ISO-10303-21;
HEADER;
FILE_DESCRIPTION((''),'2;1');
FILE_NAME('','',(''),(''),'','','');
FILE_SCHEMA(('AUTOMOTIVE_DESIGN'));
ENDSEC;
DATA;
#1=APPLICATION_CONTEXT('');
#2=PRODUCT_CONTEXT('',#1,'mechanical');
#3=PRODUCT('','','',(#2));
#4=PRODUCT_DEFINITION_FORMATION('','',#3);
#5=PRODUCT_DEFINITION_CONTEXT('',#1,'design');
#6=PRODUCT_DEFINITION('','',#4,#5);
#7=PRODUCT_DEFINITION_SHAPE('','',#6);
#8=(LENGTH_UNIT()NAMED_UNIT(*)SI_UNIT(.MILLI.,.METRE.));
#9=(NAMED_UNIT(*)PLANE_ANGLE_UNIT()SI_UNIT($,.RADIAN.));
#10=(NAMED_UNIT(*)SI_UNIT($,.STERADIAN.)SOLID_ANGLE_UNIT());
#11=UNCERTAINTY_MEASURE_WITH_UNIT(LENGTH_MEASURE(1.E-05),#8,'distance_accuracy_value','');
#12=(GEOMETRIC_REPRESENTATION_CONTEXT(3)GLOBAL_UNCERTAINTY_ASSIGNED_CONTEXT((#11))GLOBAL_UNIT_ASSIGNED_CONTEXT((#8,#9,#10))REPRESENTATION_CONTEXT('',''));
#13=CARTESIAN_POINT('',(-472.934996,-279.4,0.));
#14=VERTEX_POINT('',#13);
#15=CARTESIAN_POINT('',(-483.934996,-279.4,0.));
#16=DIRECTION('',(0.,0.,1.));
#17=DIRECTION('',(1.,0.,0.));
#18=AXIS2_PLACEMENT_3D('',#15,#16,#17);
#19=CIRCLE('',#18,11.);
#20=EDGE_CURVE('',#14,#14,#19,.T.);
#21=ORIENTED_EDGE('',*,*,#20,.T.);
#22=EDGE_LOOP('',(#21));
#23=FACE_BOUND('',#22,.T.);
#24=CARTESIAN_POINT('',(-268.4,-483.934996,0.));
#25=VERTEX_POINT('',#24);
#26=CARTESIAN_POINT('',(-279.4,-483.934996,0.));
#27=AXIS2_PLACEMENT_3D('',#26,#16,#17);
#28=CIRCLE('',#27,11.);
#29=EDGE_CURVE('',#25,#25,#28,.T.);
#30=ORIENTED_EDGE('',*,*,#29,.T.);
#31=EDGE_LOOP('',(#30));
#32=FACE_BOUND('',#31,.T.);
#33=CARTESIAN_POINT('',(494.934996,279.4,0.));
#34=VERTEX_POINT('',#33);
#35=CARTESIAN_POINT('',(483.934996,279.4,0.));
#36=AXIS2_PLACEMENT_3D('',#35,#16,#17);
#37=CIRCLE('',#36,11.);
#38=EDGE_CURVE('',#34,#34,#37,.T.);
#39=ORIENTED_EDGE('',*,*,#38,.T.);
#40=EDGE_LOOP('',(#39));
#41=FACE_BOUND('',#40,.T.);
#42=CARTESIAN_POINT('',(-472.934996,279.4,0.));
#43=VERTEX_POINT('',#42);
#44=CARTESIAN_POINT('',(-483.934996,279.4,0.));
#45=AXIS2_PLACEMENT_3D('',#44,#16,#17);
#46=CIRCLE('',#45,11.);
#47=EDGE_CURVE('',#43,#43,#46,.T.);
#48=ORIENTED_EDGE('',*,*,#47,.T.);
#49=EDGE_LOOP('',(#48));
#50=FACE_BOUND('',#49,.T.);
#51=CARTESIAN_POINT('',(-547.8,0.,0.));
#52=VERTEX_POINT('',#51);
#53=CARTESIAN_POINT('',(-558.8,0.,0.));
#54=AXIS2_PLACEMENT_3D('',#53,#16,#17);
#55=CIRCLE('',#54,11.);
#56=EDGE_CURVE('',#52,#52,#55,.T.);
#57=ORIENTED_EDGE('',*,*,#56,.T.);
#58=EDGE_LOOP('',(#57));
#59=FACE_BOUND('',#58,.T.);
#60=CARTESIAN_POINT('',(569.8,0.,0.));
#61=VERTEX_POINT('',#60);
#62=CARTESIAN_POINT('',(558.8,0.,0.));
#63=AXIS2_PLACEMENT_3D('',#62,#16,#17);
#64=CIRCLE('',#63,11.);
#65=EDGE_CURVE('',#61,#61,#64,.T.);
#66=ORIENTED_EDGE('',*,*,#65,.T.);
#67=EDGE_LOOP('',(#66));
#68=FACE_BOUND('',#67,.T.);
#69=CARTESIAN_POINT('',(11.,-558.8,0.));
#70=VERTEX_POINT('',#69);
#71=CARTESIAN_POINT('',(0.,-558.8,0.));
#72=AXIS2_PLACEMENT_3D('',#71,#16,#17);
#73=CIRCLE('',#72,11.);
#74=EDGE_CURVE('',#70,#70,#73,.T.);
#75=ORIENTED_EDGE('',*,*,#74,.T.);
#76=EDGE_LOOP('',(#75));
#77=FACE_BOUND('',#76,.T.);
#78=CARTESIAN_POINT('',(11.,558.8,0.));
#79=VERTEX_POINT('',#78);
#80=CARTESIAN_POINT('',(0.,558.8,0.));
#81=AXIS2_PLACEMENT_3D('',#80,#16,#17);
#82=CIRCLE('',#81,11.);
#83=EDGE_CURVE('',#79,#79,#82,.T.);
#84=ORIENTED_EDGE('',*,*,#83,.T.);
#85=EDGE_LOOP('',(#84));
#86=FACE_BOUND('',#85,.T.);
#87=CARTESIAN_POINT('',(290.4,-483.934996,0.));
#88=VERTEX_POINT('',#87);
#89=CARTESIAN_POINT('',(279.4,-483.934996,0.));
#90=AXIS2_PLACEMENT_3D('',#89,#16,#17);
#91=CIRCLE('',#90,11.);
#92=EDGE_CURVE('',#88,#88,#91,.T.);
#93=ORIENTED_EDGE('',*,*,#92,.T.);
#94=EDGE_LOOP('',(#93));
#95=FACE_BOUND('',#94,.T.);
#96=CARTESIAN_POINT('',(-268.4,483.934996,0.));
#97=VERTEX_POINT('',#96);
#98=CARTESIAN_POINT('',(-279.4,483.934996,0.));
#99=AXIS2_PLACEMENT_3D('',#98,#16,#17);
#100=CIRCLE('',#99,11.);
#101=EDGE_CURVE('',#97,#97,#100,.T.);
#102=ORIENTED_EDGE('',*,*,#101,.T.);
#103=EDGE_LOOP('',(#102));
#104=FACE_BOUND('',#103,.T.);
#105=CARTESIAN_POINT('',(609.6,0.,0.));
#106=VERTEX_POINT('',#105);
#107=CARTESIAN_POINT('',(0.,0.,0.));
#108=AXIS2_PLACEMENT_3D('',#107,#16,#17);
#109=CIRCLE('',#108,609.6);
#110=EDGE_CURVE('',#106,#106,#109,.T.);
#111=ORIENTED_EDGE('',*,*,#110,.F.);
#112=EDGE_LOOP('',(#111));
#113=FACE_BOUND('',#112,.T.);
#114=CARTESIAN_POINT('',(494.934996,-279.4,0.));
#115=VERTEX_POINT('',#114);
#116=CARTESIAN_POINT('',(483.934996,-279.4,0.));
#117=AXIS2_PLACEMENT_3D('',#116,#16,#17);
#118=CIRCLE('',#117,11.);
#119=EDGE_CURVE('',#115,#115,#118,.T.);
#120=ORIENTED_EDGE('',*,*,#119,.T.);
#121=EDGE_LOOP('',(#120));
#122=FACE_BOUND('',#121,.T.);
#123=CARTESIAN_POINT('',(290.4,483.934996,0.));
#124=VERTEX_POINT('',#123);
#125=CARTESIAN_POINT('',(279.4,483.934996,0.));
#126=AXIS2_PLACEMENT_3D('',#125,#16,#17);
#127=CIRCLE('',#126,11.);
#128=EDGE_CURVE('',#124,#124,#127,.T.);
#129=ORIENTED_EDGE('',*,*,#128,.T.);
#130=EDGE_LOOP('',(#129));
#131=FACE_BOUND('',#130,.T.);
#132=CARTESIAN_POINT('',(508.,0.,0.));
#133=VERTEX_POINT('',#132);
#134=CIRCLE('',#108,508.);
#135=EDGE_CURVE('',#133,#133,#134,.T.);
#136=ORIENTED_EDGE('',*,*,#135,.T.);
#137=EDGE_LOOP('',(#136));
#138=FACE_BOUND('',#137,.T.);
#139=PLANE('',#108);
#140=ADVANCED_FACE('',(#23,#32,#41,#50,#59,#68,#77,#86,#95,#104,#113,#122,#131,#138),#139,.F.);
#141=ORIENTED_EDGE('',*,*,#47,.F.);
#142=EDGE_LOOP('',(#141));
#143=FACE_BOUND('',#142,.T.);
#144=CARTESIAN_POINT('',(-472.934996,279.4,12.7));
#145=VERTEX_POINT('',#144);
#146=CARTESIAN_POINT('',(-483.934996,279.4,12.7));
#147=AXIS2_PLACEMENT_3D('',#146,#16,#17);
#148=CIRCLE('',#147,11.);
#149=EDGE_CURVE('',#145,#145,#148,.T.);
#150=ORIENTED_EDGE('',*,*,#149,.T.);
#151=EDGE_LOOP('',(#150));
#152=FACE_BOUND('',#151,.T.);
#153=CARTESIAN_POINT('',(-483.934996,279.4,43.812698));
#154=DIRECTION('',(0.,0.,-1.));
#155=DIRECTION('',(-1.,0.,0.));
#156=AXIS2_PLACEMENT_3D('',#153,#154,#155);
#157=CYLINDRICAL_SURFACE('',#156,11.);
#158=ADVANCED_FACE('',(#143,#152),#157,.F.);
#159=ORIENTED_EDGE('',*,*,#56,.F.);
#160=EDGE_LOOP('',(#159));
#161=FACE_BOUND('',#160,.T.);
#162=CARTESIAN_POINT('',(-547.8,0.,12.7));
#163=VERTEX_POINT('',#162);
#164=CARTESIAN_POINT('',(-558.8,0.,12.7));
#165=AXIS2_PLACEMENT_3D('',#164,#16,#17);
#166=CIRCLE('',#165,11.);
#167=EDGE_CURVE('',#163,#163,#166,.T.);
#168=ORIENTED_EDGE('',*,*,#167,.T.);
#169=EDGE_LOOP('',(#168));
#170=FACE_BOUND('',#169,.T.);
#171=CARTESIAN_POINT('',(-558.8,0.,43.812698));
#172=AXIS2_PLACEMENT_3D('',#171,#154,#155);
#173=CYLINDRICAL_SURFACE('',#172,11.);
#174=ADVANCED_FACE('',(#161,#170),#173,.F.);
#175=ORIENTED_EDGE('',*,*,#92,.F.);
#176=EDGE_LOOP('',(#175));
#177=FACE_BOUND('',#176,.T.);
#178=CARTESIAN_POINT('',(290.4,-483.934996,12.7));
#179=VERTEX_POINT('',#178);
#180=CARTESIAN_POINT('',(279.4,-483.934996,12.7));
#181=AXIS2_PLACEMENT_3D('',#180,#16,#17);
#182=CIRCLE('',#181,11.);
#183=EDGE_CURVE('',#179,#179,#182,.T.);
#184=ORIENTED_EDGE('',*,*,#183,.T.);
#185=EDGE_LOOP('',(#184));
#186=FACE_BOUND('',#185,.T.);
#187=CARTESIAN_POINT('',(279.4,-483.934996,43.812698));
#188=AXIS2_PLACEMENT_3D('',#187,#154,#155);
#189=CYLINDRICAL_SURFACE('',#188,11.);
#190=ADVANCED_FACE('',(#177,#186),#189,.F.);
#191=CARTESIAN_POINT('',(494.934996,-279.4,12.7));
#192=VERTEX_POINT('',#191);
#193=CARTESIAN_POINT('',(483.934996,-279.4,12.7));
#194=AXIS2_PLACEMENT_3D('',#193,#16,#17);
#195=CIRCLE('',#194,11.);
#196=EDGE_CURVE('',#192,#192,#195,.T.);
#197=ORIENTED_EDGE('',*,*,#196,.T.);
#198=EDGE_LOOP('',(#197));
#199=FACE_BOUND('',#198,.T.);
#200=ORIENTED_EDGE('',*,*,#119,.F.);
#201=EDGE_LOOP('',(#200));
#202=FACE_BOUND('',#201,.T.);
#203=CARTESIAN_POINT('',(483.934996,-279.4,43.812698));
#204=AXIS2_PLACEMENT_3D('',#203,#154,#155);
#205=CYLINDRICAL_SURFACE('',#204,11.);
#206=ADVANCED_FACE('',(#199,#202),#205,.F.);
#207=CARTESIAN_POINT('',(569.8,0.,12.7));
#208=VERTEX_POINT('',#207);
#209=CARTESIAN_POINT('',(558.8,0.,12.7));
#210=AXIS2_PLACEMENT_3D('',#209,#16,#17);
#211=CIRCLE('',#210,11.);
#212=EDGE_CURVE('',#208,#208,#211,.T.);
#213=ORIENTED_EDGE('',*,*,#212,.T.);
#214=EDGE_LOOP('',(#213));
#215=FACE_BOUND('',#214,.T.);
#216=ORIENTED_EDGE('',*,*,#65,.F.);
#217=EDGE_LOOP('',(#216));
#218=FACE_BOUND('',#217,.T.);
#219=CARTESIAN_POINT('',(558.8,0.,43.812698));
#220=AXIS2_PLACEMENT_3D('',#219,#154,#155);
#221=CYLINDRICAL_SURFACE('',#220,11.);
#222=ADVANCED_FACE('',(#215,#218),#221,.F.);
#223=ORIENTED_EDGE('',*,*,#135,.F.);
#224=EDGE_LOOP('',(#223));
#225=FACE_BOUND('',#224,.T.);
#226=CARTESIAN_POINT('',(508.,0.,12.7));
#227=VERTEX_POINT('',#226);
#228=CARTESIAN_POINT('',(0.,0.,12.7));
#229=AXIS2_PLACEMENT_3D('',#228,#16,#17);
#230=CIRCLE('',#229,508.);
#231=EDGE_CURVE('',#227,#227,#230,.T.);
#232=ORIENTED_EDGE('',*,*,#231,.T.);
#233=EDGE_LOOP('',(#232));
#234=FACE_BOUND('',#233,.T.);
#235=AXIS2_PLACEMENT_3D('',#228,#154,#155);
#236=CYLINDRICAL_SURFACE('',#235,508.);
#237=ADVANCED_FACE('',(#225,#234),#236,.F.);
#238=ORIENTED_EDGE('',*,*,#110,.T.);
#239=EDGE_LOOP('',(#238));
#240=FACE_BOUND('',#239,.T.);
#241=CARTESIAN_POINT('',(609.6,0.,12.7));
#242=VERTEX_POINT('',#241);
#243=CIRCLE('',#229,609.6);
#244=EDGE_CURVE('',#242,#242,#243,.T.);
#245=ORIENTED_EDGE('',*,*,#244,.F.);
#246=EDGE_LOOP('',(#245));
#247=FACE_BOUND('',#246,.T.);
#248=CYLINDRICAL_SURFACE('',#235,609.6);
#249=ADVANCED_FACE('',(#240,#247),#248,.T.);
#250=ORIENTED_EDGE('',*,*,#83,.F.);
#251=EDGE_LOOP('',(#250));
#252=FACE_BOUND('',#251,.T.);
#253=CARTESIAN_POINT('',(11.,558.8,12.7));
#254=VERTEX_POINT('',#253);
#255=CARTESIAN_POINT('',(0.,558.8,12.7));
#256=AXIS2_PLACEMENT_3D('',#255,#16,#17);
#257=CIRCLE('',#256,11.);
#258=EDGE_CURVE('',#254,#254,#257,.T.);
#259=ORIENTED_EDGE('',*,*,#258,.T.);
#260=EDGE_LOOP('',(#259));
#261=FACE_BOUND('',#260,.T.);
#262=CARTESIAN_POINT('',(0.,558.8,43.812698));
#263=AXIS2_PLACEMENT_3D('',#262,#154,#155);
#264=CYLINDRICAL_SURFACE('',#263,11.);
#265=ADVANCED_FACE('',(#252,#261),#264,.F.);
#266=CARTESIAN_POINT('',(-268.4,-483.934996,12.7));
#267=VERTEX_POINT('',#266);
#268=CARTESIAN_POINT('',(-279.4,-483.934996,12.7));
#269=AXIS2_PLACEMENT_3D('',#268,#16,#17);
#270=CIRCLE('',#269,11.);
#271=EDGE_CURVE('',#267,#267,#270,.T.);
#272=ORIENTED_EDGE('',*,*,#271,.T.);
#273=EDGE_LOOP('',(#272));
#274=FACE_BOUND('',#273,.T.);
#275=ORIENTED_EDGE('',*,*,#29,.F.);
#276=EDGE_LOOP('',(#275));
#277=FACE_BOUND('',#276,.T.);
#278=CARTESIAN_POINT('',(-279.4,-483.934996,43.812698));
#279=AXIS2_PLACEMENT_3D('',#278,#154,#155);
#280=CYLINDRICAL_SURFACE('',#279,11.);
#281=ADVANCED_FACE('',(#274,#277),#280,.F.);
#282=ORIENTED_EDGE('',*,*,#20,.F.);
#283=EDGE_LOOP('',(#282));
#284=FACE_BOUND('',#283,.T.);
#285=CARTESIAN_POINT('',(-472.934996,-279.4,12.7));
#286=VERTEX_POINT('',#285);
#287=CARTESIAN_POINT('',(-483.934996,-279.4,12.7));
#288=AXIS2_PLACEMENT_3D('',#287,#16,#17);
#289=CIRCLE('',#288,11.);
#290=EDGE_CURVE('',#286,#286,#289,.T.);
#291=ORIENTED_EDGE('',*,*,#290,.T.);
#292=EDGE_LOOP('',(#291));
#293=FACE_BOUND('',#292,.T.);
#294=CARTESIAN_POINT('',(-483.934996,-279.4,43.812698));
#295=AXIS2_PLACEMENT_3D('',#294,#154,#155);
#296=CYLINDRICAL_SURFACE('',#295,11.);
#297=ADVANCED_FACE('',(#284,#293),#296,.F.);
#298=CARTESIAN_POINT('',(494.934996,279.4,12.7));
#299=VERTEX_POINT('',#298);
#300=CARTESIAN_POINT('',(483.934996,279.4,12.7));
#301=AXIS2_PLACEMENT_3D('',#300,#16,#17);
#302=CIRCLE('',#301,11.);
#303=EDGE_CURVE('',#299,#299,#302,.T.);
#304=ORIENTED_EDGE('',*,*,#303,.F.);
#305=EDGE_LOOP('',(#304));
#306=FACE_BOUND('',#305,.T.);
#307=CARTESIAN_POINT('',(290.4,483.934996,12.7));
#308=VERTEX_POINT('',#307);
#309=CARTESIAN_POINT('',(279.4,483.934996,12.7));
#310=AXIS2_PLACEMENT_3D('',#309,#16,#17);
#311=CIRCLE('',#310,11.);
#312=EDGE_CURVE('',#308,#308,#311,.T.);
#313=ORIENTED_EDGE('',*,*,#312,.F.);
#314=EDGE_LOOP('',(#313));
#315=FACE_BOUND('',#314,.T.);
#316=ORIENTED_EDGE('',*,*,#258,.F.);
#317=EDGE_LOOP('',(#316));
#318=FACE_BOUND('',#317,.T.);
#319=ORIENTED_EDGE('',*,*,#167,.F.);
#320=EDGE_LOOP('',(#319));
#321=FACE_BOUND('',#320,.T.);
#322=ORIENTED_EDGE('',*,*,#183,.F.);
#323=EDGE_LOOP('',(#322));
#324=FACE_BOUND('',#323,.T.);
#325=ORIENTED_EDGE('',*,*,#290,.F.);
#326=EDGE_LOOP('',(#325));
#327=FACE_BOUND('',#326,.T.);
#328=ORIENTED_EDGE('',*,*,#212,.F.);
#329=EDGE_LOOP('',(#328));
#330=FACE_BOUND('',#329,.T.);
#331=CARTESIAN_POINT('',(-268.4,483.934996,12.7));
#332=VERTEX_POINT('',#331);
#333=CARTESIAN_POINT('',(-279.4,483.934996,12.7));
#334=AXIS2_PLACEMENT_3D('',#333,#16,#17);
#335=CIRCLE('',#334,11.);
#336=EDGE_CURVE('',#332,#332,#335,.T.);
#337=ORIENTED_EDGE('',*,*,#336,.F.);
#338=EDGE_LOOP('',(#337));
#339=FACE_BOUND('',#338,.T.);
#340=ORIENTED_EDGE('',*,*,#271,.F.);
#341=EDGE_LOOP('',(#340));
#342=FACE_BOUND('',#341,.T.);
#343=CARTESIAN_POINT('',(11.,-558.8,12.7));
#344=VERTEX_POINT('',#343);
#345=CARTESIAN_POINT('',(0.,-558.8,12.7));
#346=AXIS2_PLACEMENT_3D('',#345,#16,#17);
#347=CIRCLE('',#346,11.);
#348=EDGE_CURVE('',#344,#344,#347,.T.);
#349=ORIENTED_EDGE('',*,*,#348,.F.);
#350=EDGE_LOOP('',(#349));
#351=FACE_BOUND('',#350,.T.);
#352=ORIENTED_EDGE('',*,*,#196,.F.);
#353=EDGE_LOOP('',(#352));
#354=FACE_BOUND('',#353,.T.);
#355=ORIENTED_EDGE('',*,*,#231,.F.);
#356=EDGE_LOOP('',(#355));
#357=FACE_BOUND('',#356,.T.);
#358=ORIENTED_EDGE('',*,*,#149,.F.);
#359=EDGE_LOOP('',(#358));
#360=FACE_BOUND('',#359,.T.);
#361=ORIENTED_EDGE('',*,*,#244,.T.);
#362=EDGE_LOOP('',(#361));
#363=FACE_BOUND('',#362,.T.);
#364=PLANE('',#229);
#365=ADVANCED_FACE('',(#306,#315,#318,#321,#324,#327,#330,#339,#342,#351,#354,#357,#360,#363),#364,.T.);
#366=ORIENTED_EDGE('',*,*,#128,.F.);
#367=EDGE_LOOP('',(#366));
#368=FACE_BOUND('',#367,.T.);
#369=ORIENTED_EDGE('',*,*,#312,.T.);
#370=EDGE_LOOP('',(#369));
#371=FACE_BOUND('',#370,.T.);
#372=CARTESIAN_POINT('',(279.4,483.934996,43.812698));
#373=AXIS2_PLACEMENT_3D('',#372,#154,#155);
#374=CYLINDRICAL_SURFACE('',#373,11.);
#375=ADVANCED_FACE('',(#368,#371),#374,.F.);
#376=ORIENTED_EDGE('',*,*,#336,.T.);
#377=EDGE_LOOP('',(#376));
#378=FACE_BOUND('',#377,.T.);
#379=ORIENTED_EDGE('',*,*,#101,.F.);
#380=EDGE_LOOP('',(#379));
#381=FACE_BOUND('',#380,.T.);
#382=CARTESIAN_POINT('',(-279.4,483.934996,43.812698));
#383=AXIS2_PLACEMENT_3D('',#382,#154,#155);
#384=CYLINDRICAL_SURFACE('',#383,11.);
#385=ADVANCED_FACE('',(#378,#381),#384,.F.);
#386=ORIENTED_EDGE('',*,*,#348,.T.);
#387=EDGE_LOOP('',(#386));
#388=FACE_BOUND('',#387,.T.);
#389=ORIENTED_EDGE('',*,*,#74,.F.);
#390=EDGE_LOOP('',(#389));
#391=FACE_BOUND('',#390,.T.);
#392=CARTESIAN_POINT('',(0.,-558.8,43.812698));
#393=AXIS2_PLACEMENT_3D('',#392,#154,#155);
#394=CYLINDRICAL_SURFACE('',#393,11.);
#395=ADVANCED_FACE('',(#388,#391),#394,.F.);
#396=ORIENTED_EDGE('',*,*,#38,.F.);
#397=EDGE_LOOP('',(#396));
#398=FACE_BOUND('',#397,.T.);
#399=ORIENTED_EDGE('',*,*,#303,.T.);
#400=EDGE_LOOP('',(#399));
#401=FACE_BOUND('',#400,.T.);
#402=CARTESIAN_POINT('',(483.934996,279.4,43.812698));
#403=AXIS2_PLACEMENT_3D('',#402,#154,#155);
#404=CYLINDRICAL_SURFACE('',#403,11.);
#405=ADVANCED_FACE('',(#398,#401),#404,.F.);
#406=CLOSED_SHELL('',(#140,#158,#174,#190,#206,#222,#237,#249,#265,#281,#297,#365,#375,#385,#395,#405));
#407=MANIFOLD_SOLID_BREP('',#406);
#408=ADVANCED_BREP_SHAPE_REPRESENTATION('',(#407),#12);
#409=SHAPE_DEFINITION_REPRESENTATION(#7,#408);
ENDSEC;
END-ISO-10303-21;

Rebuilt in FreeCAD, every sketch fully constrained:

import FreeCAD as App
import Part
import Sketcher
from FreeCAD import Vector
Q = App.Units.Quantity

doc = App.newDocument("Part")
body = doc.addObject("PartDesign::Body", "Body")

sketch1 = body.newObject("Sketcher::SketchObject", "Sketch")
sketch1.AttachmentSupport = (doc.getObject("XY_Plane"), [""])
sketch1.MapMode = "FlatFace"
sketch1.addGeometry(Part.Circle(Vector(0, 0, 0), Vector(0, 0, 1), 610), False)
sketch1.addGeometry(Part.Circle(Vector(0, 0, 0), Vector(0, 0, 1), 508), False)
sketch1.addConstraint(Sketcher.Constraint("Coincident", 0, 3, -1, 1))
sketch1.addConstraint(Sketcher.Constraint("Coincident", 1, 3, -1, 1))
sketch1.addConstraint(Sketcher.Constraint("Diameter", 0, Q("48 in")))
sketch1.addConstraint(Sketcher.Constraint("Diameter", 1, Q("40 in")))
pad1 = body.newObject("PartDesign::Pad", "Pad")
pad1.Profile = sketch1
pad1.Length = Q("0.5 in")

sketch2 = body.newObject("Sketcher::SketchObject", "Sketch001")
sketch2.AttachmentSupport = (doc.getObject("XY_Plane"), [""])
sketch2.MapMode = "FlatFace"
sketch2.addGeometry(Part.Circle(Vector(0, 216, 0), Vector(0, 0, 1), 11), False)
sketch2.addGeometry(Part.Circle(Vector(0, 559, 0), Vector(0, 0, 1), 11), False)
sketch2.addGeometry(Part.Circle(Vector(279, 484, 0), Vector(0, 0, 1), 11), False)
sketch2.addGeometry(Part.Circle(Vector(484, 279, 0), Vector(0, 0, 1), 11), False)
sketch2.addGeometry(Part.Circle(Vector(559, 0, 0), Vector(0, 0, 1), 11), False)
sketch2.addGeometry(Part.Circle(Vector(484, -279, 0), Vector(0, 0, 1), 11), False)
sketch2.addGeometry(Part.Circle(Vector(279, -484, 0), Vector(0, 0, 1), 11), False)
sketch2.addGeometry(Part.Circle(Vector(0, -559, 0), Vector(0, 0, 1), 11), False)
sketch2.addGeometry(Part.Circle(Vector(-279, -484, 0), Vector(0, 0, 1), 11), False)
sketch2.addGeometry(Part.Circle(Vector(-484, -279, 0), Vector(0, 0, 1), 11), False)
sketch2.addGeometry(Part.Circle(Vector(-559, 0, 0), Vector(0, 0, 1), 11), False)
sketch2.addGeometry(Part.Circle(Vector(-484, 279, 0), Vector(0, 0, 1), 11), False)
sketch2.addGeometry(Part.Circle(Vector(-279, 484, 0), Vector(0, 0, 1), 11), False)
sketch2.addConstraint(Sketcher.Constraint("Equal", 0, 1))
sketch2.addConstraint(Sketcher.Constraint("Equal", 1, 2))
sketch2.addConstraint(Sketcher.Constraint("Equal", 2, 3))
sketch2.addConstraint(Sketcher.Constraint("Equal", 3, 4))
sketch2.addConstraint(Sketcher.Constraint("Equal", 4, 5))
sketch2.addConstraint(Sketcher.Constraint("Equal", 5, 6))
sketch2.addConstraint(Sketcher.Constraint("Equal", 6, 7))
sketch2.addConstraint(Sketcher.Constraint("Equal", 7, 8))
sketch2.addConstraint(Sketcher.Constraint("Equal", 8, 9))
sketch2.addConstraint(Sketcher.Constraint("Equal", 9, 10))
sketch2.addConstraint(Sketcher.Constraint("Equal", 10, 11))
sketch2.addConstraint(Sketcher.Constraint("Equal", 11, 12))
sketch2.addConstraint(Sketcher.Constraint("Symmetric", 1, 3, 7, 3, -1, 1))
sketch2.addConstraint(Sketcher.Constraint("Symmetric", 2, 3, 8, 3, -1, 1))
sketch2.addConstraint(Sketcher.Constraint("Symmetric", 3, 3, 9, 3, -1, 1))
sketch2.addConstraint(Sketcher.Constraint("Symmetric", 4, 3, 10, 3, -1, 1))
sketch2.addConstraint(Sketcher.Constraint("Symmetric", 5, 3, 11, 3, -1, 1))
sketch2.addConstraint(Sketcher.Constraint("Symmetric", 6, 3, 12, 3, -1, 1))
sketch2.addConstraint(Sketcher.Constraint("Symmetric", 6, 3, 8, 3, -2))
sketch2.addConstraint(Sketcher.Constraint("Symmetric", 5, 3, 9, 3, -2))
sketch2.addConstraint(Sketcher.Constraint("PointOnObject", 0, 3, -2))
sketch2.addConstraint(Sketcher.Constraint("PointOnObject", 1, 3, -2))
sketch2.addConstraint(Sketcher.Constraint("PointOnObject", 4, 3, -1))
sketch2.addConstraint(Sketcher.Constraint("DistanceY", -1, 1, 1, 3, Q("22 in")))
sketch2.addConstraint(Sketcher.Constraint("DistanceX", -1, 1, 2, 3, Q("11 in")))
sketch2.addConstraint(Sketcher.Constraint("DistanceY", -1, 1, 3, 3, Q("11 in")))
sketch2.addConstraint(Sketcher.Constraint("DistanceX", -1, 1, 4, 3, Q("22 in")))
sketch2.addConstraint(Sketcher.Constraint("Diameter", 0, Q("22 mm")))
sketch2.addConstraint(Sketcher.Constraint("DistanceY", -1, 1, 0, 3, Q("215.685 mm")))
sketch2.addConstraint(Sketcher.Constraint("DistanceY", 6, 3, 2, 3, Q("967.869991 mm")))
sketch2.addConstraint(Sketcher.Constraint("DistanceX", -1, 1, 3, 3, Q("483.934996 mm")))
pocket1 = body.newObject("PartDesign::Pocket", "Pocket")
pocket1.Profile = sketch2
pocket1.Length = Q("0.5 in")
pocket1.Reversed = True

doc.recompute()
